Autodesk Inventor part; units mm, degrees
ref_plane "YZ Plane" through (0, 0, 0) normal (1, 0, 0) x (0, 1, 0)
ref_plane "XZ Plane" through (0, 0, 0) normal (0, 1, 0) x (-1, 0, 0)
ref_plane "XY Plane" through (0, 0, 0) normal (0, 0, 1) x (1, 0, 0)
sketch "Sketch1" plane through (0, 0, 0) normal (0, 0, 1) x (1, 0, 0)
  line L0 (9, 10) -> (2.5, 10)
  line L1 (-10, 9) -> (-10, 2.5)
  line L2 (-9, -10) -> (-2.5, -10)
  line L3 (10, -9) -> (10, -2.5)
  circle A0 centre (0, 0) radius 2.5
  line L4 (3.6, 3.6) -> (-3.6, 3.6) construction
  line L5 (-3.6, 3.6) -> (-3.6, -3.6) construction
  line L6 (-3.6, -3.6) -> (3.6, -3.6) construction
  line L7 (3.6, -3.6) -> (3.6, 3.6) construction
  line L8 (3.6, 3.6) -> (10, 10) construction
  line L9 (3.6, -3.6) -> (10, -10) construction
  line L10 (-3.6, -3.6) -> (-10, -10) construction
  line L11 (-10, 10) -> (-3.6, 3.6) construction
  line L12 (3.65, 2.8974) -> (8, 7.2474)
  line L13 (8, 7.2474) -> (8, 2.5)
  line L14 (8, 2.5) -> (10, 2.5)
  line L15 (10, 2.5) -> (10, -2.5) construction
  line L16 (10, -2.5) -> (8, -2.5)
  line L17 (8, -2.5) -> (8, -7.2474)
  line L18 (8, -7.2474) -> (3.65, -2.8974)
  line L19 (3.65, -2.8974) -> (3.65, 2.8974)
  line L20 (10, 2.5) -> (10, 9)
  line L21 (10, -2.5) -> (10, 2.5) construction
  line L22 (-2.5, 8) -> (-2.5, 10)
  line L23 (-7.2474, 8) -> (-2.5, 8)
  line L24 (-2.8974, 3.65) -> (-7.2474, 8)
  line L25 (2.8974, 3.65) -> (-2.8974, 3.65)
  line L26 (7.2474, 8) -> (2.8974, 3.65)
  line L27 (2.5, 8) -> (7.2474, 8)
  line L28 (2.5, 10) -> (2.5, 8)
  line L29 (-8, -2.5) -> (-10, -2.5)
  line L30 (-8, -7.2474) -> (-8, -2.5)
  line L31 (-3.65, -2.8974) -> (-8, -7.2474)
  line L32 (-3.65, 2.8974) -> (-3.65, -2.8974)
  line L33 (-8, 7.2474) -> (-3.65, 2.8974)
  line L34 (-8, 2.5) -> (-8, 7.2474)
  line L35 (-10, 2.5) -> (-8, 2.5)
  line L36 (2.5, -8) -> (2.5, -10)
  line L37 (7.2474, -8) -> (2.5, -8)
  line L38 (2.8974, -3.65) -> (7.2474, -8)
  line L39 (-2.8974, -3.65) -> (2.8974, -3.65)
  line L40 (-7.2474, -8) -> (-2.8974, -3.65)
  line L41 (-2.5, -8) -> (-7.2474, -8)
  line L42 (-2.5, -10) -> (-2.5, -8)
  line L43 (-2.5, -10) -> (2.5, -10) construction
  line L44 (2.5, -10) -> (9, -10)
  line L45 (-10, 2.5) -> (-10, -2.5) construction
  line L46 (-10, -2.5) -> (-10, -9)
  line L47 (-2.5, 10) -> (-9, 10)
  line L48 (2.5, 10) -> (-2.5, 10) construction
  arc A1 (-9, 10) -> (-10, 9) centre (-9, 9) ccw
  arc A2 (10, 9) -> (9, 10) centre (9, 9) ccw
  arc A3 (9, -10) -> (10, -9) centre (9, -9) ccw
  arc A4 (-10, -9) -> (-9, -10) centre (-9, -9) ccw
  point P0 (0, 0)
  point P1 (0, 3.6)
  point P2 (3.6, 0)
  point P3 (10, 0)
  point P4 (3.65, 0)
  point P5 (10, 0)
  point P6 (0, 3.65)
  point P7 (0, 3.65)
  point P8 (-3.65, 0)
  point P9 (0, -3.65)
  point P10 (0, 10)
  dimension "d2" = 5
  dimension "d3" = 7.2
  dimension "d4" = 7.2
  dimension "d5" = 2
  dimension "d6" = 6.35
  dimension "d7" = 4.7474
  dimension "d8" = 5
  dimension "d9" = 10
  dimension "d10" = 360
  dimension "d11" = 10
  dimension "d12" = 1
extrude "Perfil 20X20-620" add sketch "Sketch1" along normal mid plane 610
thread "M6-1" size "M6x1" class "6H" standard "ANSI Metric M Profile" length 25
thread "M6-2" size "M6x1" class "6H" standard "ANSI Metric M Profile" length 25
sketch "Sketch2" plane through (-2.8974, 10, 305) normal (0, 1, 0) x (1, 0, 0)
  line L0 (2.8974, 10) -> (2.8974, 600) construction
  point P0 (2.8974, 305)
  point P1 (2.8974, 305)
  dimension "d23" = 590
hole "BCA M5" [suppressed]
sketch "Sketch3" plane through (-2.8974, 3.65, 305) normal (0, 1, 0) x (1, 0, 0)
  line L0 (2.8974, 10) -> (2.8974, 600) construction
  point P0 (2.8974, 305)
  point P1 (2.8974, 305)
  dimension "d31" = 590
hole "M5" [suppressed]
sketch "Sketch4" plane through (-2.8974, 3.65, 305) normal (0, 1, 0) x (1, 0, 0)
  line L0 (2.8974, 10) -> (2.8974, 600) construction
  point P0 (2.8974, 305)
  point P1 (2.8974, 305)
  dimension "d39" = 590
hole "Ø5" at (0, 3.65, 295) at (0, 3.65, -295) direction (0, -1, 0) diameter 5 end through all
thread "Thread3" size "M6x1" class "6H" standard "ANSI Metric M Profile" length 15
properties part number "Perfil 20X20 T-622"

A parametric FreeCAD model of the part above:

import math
import FreeCAD as App
import Part
import Sketcher
from FreeCAD import Vector
Q = App.Units.Quantity

doc = App.newDocument("Part")
body = doc.addObject("PartDesign::Body", "Body")

sketch1 = body.newObject("Sketcher::SketchObject", "Sketch")
sketch1.AttachmentSupport = (doc.getObject("XY_Plane"), [""])
sketch1.MapMode = "FlatFace"
sketch1.addGeometry(Part.ArcOfCircle(Part.Circle(Vector(9, 9, 0), Vector(0, 0, 1), 1), math.radians(0), math.radians(90)), False)
sketch1.addGeometry(Part.LineSegment(Vector(9, 10, 0), Vector(2.5, 10, 0)), False)
sketch1.addGeometry(Part.LineSegment(Vector(2.5, 10, 0), Vector(2.5, 8, 0)), False)
sketch1.addGeometry(Part.LineSegment(Vector(2.5, 8, 0), Vector(7.2, 8, 0)), False)
sketch1.addGeometry(Part.LineSegment(Vector(7.2, 8, 0), Vector(2.9, 3.6, 0)), False)
sketch1.addGeometry(Part.LineSegment(Vector(2.9, 3.6, 0), Vector(-2.9, 3.6, 0)), False)
sketch1.addGeometry(Part.LineSegment(Vector(-2.9, 3.6, 0), Vector(-7.2, 8, 0)), False)
sketch1.addGeometry(Part.LineSegment(Vector(-7.2, 8, 0), Vector(-2.5, 8, 0)), False)
sketch1.addGeometry(Part.LineSegment(Vector(-2.5, 8, 0), Vector(-2.5, 10, 0)), False)
sketch1.addGeometry(Part.LineSegment(Vector(-2.5, 10, 0), Vector(-9, 10, 0)), False)
sketch1.addGeometry(Part.ArcOfCircle(Part.Circle(Vector(-9, 9, 0), Vector(0, 0, 1), 1), math.radians(90), math.radians(180)), False)
sketch1.addGeometry(Part.LineSegment(Vector(-10, 9, 0), Vector(-10, 2.5, 0)), False)
sketch1.addGeometry(Part.LineSegment(Vector(-10, 2.5, 0), Vector(-8, 2.5, 0)), False)
sketch1.addGeometry(Part.LineSegment(Vector(-8, 2.5, 0), Vector(-8, 7.2, 0)), False)
sketch1.addGeometry(Part.LineSegment(Vector(-8, 7.2, 0), Vector(-3.6, 2.9, 0)), False)
sketch1.addGeometry(Part.LineSegment(Vector(-3.6, 2.9, 0), Vector(-3.6, -2.9, 0)), False)
sketch1.addGeometry(Part.LineSegment(Vector(-3.6, -2.9, 0), Vector(-8, -7.2, 0)), False)
sketch1.addGeometry(Part.LineSegment(Vector(-8, -7.2, 0), Vector(-8, -2.5, 0)), False)
sketch1.addGeometry(Part.LineSegment(Vector(-8, -2.5, 0), Vector(-10, -2.5, 0)), False)
sketch1.addGeometry(Part.LineSegment(Vector(-10, -2.5, 0), Vector(-10, -9, 0)), False)
sketch1.addGeometry(Part.ArcOfCircle(Part.Circle(Vector(-9, -9, 0), Vector(0, 0, 1), 1), math.radians(180), math.radians(270)), False)
sketch1.addGeometry(Part.LineSegment(Vector(-9, -10, 0), Vector(-2.5, -10, 0)), False)
sketch1.addGeometry(Part.LineSegment(Vector(-2.5, -10, 0), Vector(-2.5, -8, 0)), False)
sketch1.addGeometry(Part.LineSegment(Vector(-2.5, -8, 0), Vector(-7.2, -8, 0)), False)
sketch1.addGeometry(Part.LineSegment(Vector(-7.2, -8, 0), Vector(-2.9, -3.6, 0)), False)
sketch1.addGeometry(Part.LineSegment(Vector(-2.9, -3.6, 0), Vector(2.9, -3.6, 0)), False)
sketch1.addGeometry(Part.LineSegment(Vector(2.9, -3.6, 0), Vector(7.2, -8, 0)), False)
sketch1.addGeometry(Part.LineSegment(Vector(7.2, -8, 0), Vector(2.5, -8, 0)), False)
sketch1.addGeometry(Part.LineSegment(Vector(2.5, -8, 0), Vector(2.5, -10, 0)), False)
sketch1.addGeometry(Part.LineSegment(Vector(2.5, -10, 0), Vector(9, -10, 0)), False)
sketch1.addGeometry(Part.ArcOfCircle(Part.Circle(Vector(9, -9, 0), Vector(0, 0, 1), 1), math.radians(-90), math.radians(0)), False)
sketch1.addGeometry(Part.LineSegment(Vector(10, -9, 0), Vector(10, -2.5, 0)), False)
sketch1.addGeometry(Part.LineSegment(Vector(10, -2.5, 0), Vector(8, -2.5, 0)), False)
sketch1.addGeometry(Part.LineSegment(Vector(8, -2.5, 0), Vector(8, -7.2, 0)), False)
sketch1.addGeometry(Part.LineSegment(Vector(8, -7.2, 0), Vector(3.6, -2.9, 0)), False)
sketch1.addGeometry(Part.LineSegment(Vector(3.6, -2.9, 0), Vector(3.6, 2.9, 0)), False)
sketch1.addGeometry(Part.LineSegment(Vector(3.6, 2.9, 0), Vector(8, 7.2, 0)), False)
sketch1.addGeometry(Part.LineSegment(Vector(8, 7.2, 0), Vector(8, 2.5, 0)), False)
sketch1.addGeometry(Part.LineSegment(Vector(8, 2.5, 0), Vector(10, 2.5, 0)), False)
sketch1.addGeometry(Part.LineSegment(Vector(10, 2.5, 0), Vector(10, 9, 0)), False)
sketch1.addGeometry(Part.Circle(Vector(0, 0, 0), Vector(0, 0, 1), 2.5), False)
sketch1.addConstraint(Sketcher.Constraint("Tangent", 0, 2, 1, 1))
sketch1.addConstraint(Sketcher.Constraint("Coincident", 1, 2, 2, 1))
sketch1.addConstraint(Sketcher.Constraint("Coincident", 2, 2, 3, 1))
sketch1.addConstraint(Sketcher.Constraint("Coincident", 3, 2, 4, 1))
sketch1.addConstraint(Sketcher.Constraint("Coincident", 4, 2, 5, 1))
sketch1.addConstraint(Sketcher.Constraint("Coincident", 5, 2, 6, 1))
sketch1.addConstraint(Sketcher.Constraint("Coincident", 6, 2, 7, 1))
sketch1.addConstraint(Sketcher.Constraint("Coincident", 7, 2, 8, 1))
sketch1.addConstraint(Sketcher.Constraint("Coincident", 8, 2, 9, 1))
sketch1.addConstraint(Sketcher.Constraint("Tangent", 9, 2, 10, 1))
sketch1.addConstraint(Sketcher.Constraint("Tangent", 10, 2, 11, 1))
sketch1.addConstraint(Sketcher.Constraint("Coincident", 11, 2, 12, 1))
sketch1.addConstraint(Sketcher.Constraint("Coincident", 12, 2, 13, 1))
sketch1.addConstraint(Sketcher.Constraint("Coincident", 13, 2, 14, 1))
sketch1.addConstraint(Sketcher.Constraint("Coincident", 14, 2, 15, 1))
sketch1.addConstraint(Sketcher.Constraint("Coincident", 15, 2, 16, 1))
sketch1.addConstraint(Sketcher.Constraint("Coincident", 16, 2, 17, 1))
sketch1.addConstraint(Sketcher.Constraint("Coincident", 17, 2, 18, 1))
sketch1.addConstraint(Sketcher.Constraint("Coincident", 18, 2, 19, 1))
sketch1.addConstraint(Sketcher.Constraint("Tangent", 19, 2, 20, 1))
sketch1.addConstraint(Sketcher.Constraint("Tangent", 20, 2, 21, 1))
sketch1.addConstraint(Sketcher.Constraint("Coincident", 21, 2, 22, 1))
sketch1.addConstraint(Sketcher.Constraint("Coincident", 22, 2, 23, 1))
sketch1.addConstraint(Sketcher.Constraint("Coincident", 23, 2, 24, 1))
sketch1.addConstraint(Sketcher.Constraint("Coincident", 24, 2, 25, 1))
sketch1.addConstraint(Sketcher.Constraint("Coincident", 25, 2, 26, 1))
sketch1.addConstraint(Sketcher.Constraint("Coincident", 26, 2, 27, 1))
sketch1.addConstraint(Sketcher.Constraint("Coincident", 27, 2, 28, 1))
sketch1.addConstraint(Sketcher.Constraint("Coincident", 28, 2, 29, 1))
sketch1.addConstraint(Sketcher.Constraint("Tangent", 29, 2, 30, 1))
sketch1.addConstraint(Sketcher.Constraint("Tangent", 30, 2, 31, 1))
sketch1.addConstraint(Sketcher.Constraint("Coincident", 31, 2, 32, 1))
sketch1.addConstraint(Sketcher.Constraint("Coincident", 32, 2, 33, 1))
sketch1.addConstraint(Sketcher.Constraint("Coincident", 33, 2, 34, 1))
sketch1.addConstraint(Sketcher.Constraint("Coincident", 34, 2, 35, 1))
sketch1.addConstraint(Sketcher.Constraint("Coincident", 35, 2, 36, 1))
sketch1.addConstraint(Sketcher.Constraint("Coincident", 36, 2, 37, 1))
sketch1.addConstraint(Sketcher.Constraint("Coincident", 37, 2, 38, 1))
sketch1.addConstraint(Sketcher.Constraint("Coincident", 38, 2, 39, 1))
sketch1.addConstraint(Sketcher.Constraint("Tangent", 39, 2, 0, 1))
sketch1.addConstraint(Sketcher.Constraint("Horizontal", 1))
sketch1.addConstraint(Sketcher.Constraint("Vertical", 2))
sketch1.addConstraint(Sketcher.Constraint("Horizontal", 3))
sketch1.addConstraint(Sketcher.Constraint("Horizontal", 5))
sketch1.addConstraint(Sketcher.Constraint("Horizontal", 7))
sketch1.addConstraint(Sketcher.Constraint("Vertical", 8))
sketch1.addConstraint(Sketcher.Constraint("Horizontal", 9))
sketch1.addConstraint(Sketcher.Constraint("Vertical", 11))
sketch1.addConstraint(Sketcher.Constraint("Horizontal", 12))
sketch1.addConstraint(Sketcher.Constraint("Vertical", 13))
sketch1.addConstraint(Sketcher.Constraint("Vertical", 15))
sketch1.addConstraint(Sketcher.Constraint("Vertical", 17))
sketch1.addConstraint(Sketcher.Constraint("Horizontal", 18))
sketch1.addConstraint(Sketcher.Constraint("Vertical", 19))
sketch1.addConstraint(Sketcher.Constraint("Horizontal", 21))
sketch1.addConstraint(Sketcher.Constraint("Vertical", 22))
sketch1.addConstraint(Sketcher.Constraint("Horizontal", 23))
sketch1.addConstraint(Sketcher.Constraint("Horizontal", 25))
sketch1.addConstraint(Sketcher.Constraint("Horizontal", 27))
sketch1.addConstraint(Sketcher.Constraint("Vertical", 28))
sketch1.addConstraint(Sketcher.Constraint("Horizontal", 29))
sketch1.addConstraint(Sketcher.Constraint("Vertical", 31))
sketch1.addConstraint(Sketcher.Constraint("Horizontal", 32))
sketch1.addConstraint(Sketcher.Constraint("Vertical", 33))
sketch1.addConstraint(Sketcher.Constraint("Vertical", 35))
sketch1.addConstraint(Sketcher.Constraint("Vertical", 37))
sketch1.addConstraint(Sketcher.Constraint("Horizontal", 38))
sketch1.addConstraint(Sketcher.Constraint("Vertical", 39))
sketch1.addConstraint(Sketcher.Constraint("Coincident", 40, 3, -1, 1))
sketch1.addConstraint(Sketcher.Constraint("Equal", 0, 10))
sketch1.addConstraint(Sketcher.Constraint("Equal", 10, 20))
sketch1.addConstraint(Sketcher.Constraint("Equal", 20, 30))
sketch1.addConstraint(Sketcher.Constraint("Symmetric", 0, 3, 20, 3, -1, 1))
sketch1.addConstraint(Sketcher.Constraint("Symmetric", 10, 3, 30, 3, -1, 1))
sketch1.addConstraint(Sketcher.Constraint("Symmetric", 2, 2, 22, 2, -1, 1))
sketch1.addConstraint(Sketcher.Constraint("Symmetric", 4, 2, 24, 2, -1, 1))
sketch1.addConstraint(Sketcher.Constraint("Symmetric", 6, 2, 26, 2, -1, 1))
sketch1.addConstraint(Sketcher.Constraint("Symmetric", 12, 2, 32, 2, -1, 1))
sketch1.addConstraint(Sketcher.Constraint("Symmetric", 14, 2, 34, 2, -1, 1))
sketch1.addConstraint(Sketcher.Constraint("Symmetric", 16, 2, 36, 2, -1, 1))
sketch1.addConstraint(Sketcher.Constraint("Symmetric", 0, 3, 10, 3, -2))
sketch1.addConstraint(Sketcher.Constraint("Symmetric", 3, 2, 6, 2, -2))
sketch1.addConstraint(Sketcher.Constraint("Symmetric", 17, 2, 32, 2, -2))
sketch1.addConstraint(Sketcher.Constraint("Perpendicular", 4, 6))
sketch1.addConstraint(Sketcher.Constraint("Parallel", 6, 14))
sketch1.addConstraint(Sketcher.Constraint("Perpendicular", 14, 16))
sketch1.addConstraint(Sketcher.Constraint("Parallel", 16, 24))
sketch1.addConstraint(Sketcher.Constraint("Perpendicular", 24, 26))
sketch1.addConstraint(Sketcher.Constraint("Parallel", 26, 34))
sketch1.addConstraint(Sketcher.Constraint("Perpendicular", 34, 36))
sketch1.addConstraint(Sketcher.Constraint("Horizontal", 16, 2, 33, 2))
sketch1.addConstraint(Sketcher.Constraint("Horizontal", 15, 2, 34, 2))
sketch1.addConstraint(Sketcher.Constraint("Horizontal", 12, 2, 37, 2))
sketch1.addConstraint(Sketcher.Constraint("Vertical", 8, 2, 21, 2))
sketch1.addConstraint(Sketcher.Constraint("Vertical", 2, 2, 27, 2))
sketch1.addConstraint(Sketcher.Constraint("Equal", 38, 2))
sketch1.addConstraint(Sketcher.Constraint("Equal", 29, 11))
sketch1.addConstraint(Sketcher.Constraint("Equal", 27, 13))
sketch1.addConstraint(Sketcher.Constraint("Equal", 25, 15))
sketch1.addConstraint(Sketcher.Constraint("Equal", 6, 14))
sketch1.addConstraint(Sketcher.Constraint("Diameter", 40, Q("5 mm")))
sketch1.addConstraint(Sketcher.Constraint("Radius", 0, Q("1 mm")))
sketch1.addConstraint(Sketcher.Constraint("DistanceX", 12, 1, 12, 2, Q("2 mm")))
sketch1.addConstraint(Sketcher.Constraint("DistanceY", -1, 1, 0, 2, Q("10 mm")))
sketch1.addConstraint(Sketcher.Constraint("DistanceX", 7, 2, 2, 2, Q("5 mm")))
sketch1.addConstraint(Sketcher.Constraint("DistanceY", 4, 2, 1, 2, Q("6.35 mm")))
sketch1.addConstraint(Sketcher.Constraint("DistanceX", 3, 1, 3, 2, Q("4.7474 mm")))
pad1 = body.newObject("PartDesign::Pad", "Pad")
pad1.Profile = sketch1
pad1.Length = 610
pad1.Midplane = True

sketch2 = body.newObject("Sketcher::SketchObject", "Sketch001")
sketch2.AttachmentSupport = (doc.getObject("XZ_Plane"), [""])
sketch2.MapMode = "FlatFace"
sketch2.AttachmentOffset = App.Placement(Vector(0, 0, -3.65), App.Rotation())
sketch2.addGeometry(Part.Circle(Vector(0, 295, 0), Vector(0, 0, 1), 2.5), False)
sketch2.addGeometry(Part.Circle(Vector(0, -295, 0), Vector(0, 0, 1), 2.5), False)
sketch2.addConstraint(Sketcher.Constraint("Equal", 0, 1))
sketch2.addConstraint(Sketcher.Constraint("Symmetric", 0, 3, 1, 3, -1, 1))
sketch2.addConstraint(Sketcher.Constraint("PointOnObject", 0, 3, -2))
sketch2.addConstraint(Sketcher.Constraint("Diameter", 0, Q("5 mm")))
sketch2.addConstraint(Sketcher.Constraint("DistanceY", -1, 1, 0, 3, Q("295 mm")))
doc.recompute()
hole = body.newObject("PartDesign::Hole", "Hole")
hole.Profile = sketch2
hole.ThreadType = "None"
hole.Diameter = 5
hole.DepthType = "ThroughAll"
hole.Reversed = True

doc.recompute()
